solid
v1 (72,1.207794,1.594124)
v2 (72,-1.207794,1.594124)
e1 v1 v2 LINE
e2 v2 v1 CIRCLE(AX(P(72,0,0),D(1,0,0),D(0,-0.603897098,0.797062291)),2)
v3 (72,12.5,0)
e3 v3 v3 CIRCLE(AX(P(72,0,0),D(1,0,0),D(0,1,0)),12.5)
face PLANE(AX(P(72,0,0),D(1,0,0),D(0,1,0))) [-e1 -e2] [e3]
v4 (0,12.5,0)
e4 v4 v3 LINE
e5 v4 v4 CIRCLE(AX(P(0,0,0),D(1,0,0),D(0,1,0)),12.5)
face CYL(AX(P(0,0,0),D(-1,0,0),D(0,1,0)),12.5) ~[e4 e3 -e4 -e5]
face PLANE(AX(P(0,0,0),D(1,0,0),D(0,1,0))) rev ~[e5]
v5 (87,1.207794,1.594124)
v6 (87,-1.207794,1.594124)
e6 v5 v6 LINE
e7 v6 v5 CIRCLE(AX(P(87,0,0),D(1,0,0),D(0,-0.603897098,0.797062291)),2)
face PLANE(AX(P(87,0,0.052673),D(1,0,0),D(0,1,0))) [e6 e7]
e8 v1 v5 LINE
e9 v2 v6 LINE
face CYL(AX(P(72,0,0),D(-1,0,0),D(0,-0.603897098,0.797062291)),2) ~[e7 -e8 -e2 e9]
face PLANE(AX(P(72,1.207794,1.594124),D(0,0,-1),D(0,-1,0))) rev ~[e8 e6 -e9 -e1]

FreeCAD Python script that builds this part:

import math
import FreeCAD as App
import Part
import Sketcher
Q = App.Units.Quantity

doc = App.newDocument("Part")
body = doc.addObject("PartDesign::Body", "Body")

# Sketch on YZ plane
sketch1 = body.newObject("Sketcher::SketchObject", "Sketch")
sketch1.AttachmentSupport = (doc.getObject("YZ_Plane"), [""])
sketch1.MapMode = "FlatFace"
sketch1.addGeometry(Part.Circle(App.Vector(0, 0, 0), App.Vector(0, 0, 1), 12), False)
sketch1.addConstraint(Sketcher.Constraint("Coincident", 0, 3, -1, 1))
sketch1.addConstraint(Sketcher.Constraint("Diameter", 0, Q("25 mm")))
pad1 = body.newObject("PartDesign::Pad", "Pad")
pad1.Profile = sketch1
pad1.Length = 72

# Sketch on YZ plane
sketch2 = body.newObject("Sketcher::SketchObject", "Sketch001")
sketch2.AttachmentSupport = (doc.getObject("YZ_Plane"), [""])
sketch2.MapMode = "FlatFace"
sketch2.AttachmentOffset = App.Placement(App.Vector(0, 0, 72), App.Rotation())
sketch2.addGeometry(Part.LineSegment(App.Vector(1.2, 1.6, 0), App.Vector(-1.2, 1.6, 0)), False)
sketch2.addGeometry(Part.ArcOfCircle(Part.Circle(App.Vector(0, 0, 0), App.Vector(0, 0, 1), 2), math.radians(127), math.radians(413)), False)
sketch2.addConstraint(Sketcher.Constraint("Coincident", 0, 1, 1, 2))
sketch2.addConstraint(Sketcher.Constraint("Coincident", 1, 1, 0, 2))
sketch2.addConstraint(Sketcher.Constraint("Horizontal", 0))
sketch2.addConstraint(Sketcher.Constraint("Coincident", 1, 3, -1, 1))
sketch2.addConstraint(Sketcher.Constraint("Radius", 1, Q("2 mm")))
sketch2.addConstraint(Sketcher.Constraint("DistanceX", 0, 2, 0, 1, Q("2.415588 mm")))
pad2 = body.newObject("PartDesign::Pad", "Pad001")
pad2.Profile = sketch2
pad2.Length = 15

doc.recompute()
